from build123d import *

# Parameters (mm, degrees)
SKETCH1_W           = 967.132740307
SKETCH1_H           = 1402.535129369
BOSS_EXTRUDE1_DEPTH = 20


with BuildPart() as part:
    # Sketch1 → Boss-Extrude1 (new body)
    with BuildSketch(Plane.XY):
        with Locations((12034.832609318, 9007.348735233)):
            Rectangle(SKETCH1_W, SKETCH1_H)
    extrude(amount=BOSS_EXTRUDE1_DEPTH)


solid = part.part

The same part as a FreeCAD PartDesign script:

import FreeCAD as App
import Part
import Sketcher
Q = App.Units.Quantity

doc = App.newDocument("Part")
body = doc.addObject("PartDesign::Body", "Body")

# Sketch on XY plane
sketch1 = body.newObject("Sketcher::SketchObject", "Sketch")
sketch1.AttachmentSupport = (doc.getObject("XY_Plane"), [""])
sketch1.MapMode = "FlatFace"
sketch1.addGeometry([
    Part.LineSegment(App.Vector(11551, 9709, 0), App.Vector(11551, 8306, 0)),
    Part.LineSegment(App.Vector(11551, 8306, 0), App.Vector(12518, 8306, 0)),
    Part.LineSegment(App.Vector(12518, 8306, 0), App.Vector(12518, 9709, 0)),
    Part.LineSegment(App.Vector(12518, 9709, 0), App.Vector(11551, 9709, 0)),
], False)
sketch1.addConstraint([
    Sketcher.Constraint("Coincident", 0, 2, 1, 1),
    Sketcher.Constraint("Coincident", 1, 2, 2, 1),
    Sketcher.Constraint("Coincident", 2, 2, 3, 1),
    Sketcher.Constraint("Coincident", 3, 2, 0, 1),
    Sketcher.Constraint("Vertical", 0),
    Sketcher.Constraint("Horizontal", 1),
    Sketcher.Constraint("Vertical", 2),
    Sketcher.Constraint("Horizontal", 3),
    Sketcher.Constraint("DistanceX", 1, 1, 1, 2, Q("967.13274 mm")),
    Sketcher.Constraint("DistanceY", 0, 2, 0, 1, Q("1402.535129 mm")),
    Sketcher.Constraint("DistanceY", -1, 1, 2, 2, Q("9708.6163 mm")),
    Sketcher.Constraint("DistanceX", -1, 1, 0, 2, Q("11551.266239 mm")),
])
pad1 = body.newObject("PartDesign::Pad", "Pad")
pad1.Profile = sketch1
pad1.Length = 20

doc.recompute()
